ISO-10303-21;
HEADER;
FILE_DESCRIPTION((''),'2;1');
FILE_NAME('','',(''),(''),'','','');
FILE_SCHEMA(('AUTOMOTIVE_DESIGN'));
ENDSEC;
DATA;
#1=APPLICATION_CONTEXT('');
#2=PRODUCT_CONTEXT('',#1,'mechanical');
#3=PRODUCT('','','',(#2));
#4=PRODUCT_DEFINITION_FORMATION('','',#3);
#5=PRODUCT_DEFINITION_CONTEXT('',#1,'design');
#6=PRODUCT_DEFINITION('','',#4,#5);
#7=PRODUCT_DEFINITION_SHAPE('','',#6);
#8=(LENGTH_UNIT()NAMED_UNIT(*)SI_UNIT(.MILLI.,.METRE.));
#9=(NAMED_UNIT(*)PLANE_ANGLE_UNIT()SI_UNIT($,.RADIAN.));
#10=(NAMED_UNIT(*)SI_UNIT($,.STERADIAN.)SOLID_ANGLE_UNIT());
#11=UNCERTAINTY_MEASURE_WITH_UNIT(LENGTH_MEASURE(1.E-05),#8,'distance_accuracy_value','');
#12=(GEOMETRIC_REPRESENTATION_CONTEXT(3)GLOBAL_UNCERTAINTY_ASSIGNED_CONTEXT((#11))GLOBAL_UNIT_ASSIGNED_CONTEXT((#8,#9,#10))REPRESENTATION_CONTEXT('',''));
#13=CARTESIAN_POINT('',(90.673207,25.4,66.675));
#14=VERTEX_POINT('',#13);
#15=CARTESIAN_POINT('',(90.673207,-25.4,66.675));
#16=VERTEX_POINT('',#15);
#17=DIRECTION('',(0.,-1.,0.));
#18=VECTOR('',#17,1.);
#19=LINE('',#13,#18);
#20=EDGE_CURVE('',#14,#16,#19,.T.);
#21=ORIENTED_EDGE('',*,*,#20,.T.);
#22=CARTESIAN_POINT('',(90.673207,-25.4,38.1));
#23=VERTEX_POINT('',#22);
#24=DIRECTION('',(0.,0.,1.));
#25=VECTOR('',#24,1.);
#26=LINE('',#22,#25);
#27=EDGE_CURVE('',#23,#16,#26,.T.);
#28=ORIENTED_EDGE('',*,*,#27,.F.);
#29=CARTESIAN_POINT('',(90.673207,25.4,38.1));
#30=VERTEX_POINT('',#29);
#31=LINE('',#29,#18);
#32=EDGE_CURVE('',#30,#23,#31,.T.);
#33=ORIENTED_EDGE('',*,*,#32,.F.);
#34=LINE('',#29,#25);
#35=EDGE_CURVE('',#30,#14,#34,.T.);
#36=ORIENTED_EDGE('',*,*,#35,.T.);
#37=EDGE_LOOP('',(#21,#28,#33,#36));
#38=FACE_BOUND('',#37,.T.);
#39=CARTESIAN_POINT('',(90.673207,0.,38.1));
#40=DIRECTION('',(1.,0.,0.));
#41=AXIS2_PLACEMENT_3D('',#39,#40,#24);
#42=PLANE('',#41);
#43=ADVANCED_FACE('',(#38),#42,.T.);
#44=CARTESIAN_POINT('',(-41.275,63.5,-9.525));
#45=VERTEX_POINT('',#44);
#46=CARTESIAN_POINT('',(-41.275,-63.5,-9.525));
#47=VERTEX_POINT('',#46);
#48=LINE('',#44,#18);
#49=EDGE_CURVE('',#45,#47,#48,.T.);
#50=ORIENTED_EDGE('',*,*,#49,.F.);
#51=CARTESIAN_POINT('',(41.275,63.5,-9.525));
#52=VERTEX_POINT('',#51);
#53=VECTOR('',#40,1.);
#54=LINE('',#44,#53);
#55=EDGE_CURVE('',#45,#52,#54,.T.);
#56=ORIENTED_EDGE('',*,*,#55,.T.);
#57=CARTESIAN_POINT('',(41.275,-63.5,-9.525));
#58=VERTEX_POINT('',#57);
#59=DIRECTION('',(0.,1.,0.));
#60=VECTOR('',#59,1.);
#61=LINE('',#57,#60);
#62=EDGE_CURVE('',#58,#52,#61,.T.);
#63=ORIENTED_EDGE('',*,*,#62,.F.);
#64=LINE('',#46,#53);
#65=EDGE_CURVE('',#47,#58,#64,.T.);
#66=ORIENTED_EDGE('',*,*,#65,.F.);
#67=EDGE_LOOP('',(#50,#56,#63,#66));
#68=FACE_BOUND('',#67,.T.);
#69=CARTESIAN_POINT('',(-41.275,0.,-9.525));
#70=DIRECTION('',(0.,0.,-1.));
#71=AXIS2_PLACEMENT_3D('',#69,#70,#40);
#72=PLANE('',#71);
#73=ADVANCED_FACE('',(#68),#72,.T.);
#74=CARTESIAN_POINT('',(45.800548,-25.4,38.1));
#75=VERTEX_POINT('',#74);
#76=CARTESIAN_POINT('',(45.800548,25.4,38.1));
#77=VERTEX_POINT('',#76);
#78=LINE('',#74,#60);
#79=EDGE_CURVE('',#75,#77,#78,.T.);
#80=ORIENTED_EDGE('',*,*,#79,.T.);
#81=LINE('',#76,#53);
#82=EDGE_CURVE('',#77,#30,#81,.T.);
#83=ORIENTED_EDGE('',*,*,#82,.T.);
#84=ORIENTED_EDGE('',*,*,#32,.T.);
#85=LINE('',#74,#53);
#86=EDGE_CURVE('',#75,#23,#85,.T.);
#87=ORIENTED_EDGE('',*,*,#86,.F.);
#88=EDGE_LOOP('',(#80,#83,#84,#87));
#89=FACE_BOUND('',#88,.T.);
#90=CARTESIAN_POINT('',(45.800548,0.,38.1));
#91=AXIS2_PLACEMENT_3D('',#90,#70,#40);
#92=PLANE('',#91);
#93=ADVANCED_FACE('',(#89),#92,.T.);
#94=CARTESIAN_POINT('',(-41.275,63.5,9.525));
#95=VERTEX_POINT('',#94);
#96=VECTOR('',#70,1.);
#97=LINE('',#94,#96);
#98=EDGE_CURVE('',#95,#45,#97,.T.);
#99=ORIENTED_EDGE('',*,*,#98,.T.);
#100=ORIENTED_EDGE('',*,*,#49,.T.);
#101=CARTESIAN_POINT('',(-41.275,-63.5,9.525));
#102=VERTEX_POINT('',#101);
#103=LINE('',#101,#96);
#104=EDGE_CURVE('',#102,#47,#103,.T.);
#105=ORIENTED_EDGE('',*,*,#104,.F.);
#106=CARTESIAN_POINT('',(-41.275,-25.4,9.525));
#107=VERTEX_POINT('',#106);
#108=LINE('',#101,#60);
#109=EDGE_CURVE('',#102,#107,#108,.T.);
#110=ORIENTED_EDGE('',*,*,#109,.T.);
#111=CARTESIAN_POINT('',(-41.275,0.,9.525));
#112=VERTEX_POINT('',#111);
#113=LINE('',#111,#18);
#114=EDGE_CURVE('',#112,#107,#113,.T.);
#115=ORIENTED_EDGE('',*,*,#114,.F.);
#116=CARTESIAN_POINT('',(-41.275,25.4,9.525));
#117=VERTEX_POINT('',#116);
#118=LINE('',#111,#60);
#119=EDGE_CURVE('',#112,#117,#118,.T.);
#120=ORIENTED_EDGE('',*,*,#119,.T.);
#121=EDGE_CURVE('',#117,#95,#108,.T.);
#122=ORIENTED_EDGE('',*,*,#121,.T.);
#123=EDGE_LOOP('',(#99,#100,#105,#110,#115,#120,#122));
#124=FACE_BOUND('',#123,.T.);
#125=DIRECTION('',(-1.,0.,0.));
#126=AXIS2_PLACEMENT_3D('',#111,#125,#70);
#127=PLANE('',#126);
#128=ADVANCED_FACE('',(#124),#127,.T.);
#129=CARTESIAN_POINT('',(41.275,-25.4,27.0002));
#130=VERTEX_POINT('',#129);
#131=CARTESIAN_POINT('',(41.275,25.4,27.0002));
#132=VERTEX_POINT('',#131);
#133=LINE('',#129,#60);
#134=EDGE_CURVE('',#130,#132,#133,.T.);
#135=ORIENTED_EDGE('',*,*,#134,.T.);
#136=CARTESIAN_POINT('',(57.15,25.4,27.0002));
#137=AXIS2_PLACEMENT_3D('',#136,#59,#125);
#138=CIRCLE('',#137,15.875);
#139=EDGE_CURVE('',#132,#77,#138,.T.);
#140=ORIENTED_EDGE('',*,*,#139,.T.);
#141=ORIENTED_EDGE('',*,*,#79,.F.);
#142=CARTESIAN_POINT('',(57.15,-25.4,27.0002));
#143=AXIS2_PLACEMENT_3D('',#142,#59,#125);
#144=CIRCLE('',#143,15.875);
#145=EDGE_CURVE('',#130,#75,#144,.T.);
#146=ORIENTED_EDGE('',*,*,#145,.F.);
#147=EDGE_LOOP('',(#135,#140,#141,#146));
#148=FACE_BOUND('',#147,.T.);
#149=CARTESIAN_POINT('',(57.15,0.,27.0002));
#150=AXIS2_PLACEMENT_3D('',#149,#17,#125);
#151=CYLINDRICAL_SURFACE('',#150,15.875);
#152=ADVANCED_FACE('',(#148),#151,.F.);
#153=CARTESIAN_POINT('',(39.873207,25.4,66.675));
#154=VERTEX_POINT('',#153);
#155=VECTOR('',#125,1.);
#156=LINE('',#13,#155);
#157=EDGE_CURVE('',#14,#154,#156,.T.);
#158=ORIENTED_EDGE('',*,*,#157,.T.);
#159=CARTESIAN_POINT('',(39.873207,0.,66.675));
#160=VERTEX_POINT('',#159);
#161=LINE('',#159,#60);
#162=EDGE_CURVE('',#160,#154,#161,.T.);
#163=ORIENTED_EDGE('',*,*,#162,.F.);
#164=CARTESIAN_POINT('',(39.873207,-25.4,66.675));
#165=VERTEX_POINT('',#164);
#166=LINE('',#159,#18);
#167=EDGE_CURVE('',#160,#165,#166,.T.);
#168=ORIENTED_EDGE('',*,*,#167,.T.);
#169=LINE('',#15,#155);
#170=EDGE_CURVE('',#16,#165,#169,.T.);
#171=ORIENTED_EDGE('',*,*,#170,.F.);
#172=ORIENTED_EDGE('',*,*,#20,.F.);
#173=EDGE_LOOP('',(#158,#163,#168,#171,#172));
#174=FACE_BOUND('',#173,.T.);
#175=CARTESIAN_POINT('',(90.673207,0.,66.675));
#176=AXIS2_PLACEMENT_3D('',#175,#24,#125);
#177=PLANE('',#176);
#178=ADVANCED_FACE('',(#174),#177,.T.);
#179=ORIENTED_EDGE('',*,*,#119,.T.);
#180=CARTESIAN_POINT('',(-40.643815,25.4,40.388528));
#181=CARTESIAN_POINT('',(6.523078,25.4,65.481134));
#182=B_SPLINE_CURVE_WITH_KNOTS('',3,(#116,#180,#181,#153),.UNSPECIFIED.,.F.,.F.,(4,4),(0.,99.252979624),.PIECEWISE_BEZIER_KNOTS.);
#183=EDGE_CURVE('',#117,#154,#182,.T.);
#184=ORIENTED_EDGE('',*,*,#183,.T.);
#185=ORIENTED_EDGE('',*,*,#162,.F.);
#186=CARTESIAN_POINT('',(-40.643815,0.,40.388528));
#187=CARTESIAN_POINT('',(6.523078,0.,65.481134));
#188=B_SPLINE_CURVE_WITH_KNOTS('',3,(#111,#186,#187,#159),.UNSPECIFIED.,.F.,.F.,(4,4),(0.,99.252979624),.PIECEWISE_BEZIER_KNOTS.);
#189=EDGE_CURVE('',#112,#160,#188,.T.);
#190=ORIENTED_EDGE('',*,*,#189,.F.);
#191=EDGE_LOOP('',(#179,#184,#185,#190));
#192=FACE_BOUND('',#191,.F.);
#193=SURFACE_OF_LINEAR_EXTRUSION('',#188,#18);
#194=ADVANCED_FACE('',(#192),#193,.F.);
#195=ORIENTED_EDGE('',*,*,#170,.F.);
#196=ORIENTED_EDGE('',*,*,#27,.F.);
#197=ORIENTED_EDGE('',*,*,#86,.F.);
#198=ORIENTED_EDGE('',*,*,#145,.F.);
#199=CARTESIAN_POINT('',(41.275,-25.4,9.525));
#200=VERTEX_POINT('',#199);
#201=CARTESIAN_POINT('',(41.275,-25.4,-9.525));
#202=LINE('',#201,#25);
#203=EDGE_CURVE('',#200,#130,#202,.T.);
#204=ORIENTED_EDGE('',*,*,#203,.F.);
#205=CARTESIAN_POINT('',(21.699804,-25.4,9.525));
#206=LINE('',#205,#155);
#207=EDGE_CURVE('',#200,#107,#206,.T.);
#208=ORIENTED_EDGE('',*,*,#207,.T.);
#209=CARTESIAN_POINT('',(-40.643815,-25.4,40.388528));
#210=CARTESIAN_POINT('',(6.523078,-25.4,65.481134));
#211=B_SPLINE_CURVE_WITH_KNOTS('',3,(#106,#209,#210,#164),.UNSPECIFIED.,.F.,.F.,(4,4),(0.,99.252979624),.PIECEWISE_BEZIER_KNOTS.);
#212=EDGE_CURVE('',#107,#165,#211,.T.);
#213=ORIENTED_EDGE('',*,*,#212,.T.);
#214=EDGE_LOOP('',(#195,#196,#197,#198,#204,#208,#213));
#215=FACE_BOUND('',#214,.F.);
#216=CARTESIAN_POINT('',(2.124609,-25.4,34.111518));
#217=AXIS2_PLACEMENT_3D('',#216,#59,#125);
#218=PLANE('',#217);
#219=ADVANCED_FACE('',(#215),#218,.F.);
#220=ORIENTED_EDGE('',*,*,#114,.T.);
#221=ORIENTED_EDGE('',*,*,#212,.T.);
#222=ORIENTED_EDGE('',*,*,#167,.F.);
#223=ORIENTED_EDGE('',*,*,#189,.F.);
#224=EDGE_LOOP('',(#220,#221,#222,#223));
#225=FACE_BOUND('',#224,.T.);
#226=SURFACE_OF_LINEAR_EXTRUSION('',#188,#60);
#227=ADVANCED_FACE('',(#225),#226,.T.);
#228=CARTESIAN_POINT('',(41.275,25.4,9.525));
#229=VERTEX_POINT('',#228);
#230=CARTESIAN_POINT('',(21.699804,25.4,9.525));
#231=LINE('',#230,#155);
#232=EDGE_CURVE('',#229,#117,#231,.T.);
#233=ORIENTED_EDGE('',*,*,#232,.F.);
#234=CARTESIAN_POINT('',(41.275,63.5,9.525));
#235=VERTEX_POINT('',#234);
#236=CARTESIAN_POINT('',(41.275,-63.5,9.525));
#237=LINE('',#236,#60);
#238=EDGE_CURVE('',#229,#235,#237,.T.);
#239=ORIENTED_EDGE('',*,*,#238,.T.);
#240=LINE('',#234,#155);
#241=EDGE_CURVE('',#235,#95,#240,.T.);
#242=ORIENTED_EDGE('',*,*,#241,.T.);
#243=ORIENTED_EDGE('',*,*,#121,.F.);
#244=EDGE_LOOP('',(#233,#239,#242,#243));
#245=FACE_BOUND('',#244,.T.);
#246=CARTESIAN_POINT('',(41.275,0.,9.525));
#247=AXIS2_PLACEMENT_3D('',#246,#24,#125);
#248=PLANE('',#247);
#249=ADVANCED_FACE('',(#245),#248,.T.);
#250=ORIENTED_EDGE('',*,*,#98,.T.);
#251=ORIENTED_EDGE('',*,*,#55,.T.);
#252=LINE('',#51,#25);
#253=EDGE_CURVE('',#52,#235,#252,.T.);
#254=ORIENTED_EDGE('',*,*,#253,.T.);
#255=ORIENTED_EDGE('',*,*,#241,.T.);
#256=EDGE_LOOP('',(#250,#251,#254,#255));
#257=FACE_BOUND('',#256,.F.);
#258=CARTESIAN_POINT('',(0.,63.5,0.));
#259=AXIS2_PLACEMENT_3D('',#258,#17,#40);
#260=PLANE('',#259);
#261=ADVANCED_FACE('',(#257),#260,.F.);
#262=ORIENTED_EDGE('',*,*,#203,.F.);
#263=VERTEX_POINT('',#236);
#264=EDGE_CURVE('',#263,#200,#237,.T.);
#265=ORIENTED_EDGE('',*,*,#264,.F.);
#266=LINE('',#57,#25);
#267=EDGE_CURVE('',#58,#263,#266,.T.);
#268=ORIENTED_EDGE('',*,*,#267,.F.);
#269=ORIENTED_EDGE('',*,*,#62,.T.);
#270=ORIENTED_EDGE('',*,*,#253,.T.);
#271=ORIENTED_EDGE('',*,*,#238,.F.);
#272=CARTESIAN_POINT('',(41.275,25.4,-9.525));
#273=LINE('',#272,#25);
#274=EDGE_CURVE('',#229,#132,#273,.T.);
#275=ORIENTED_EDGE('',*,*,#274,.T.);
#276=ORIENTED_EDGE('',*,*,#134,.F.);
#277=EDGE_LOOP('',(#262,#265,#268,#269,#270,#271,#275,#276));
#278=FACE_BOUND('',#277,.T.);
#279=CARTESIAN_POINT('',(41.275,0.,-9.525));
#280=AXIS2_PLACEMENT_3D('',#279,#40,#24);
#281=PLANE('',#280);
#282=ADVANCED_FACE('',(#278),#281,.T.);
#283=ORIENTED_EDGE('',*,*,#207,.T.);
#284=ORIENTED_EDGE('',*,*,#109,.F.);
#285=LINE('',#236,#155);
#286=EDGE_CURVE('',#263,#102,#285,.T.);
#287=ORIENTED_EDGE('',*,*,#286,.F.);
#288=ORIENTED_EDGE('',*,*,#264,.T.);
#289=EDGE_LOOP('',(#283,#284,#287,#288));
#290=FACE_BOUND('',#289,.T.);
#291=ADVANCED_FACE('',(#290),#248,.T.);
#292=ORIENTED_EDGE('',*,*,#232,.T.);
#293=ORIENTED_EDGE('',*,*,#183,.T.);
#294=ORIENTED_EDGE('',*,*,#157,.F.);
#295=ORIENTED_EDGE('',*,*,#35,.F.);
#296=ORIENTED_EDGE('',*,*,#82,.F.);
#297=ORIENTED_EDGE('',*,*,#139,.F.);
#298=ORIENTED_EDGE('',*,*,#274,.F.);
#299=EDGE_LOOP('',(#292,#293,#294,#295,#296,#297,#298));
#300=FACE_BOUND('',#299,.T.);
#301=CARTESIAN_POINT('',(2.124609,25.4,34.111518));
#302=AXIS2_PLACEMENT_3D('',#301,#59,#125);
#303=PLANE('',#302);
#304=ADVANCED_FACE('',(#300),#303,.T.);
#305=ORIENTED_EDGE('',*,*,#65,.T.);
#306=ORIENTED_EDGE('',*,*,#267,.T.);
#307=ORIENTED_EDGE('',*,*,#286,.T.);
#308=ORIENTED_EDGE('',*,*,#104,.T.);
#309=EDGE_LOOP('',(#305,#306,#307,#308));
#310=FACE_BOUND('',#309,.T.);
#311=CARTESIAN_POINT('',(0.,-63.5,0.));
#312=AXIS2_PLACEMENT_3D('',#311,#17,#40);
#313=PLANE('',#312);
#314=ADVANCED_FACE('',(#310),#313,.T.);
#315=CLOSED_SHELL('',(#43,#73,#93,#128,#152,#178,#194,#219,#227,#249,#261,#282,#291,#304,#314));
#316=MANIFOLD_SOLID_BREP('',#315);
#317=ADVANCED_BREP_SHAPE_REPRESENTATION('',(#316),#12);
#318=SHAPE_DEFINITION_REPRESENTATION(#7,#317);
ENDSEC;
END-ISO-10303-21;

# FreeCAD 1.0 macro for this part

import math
import FreeCAD as App
import Part
import Sketcher
from FreeCAD import Vector
Q = App.Units.Quantity


def add_polygon(sketch, points):
    """Adds a closed chain of lines whose ends are joined by coincident constraints."""
    first, n = sketch.GeometryCount, len(points)
    for a, b in zip(points, points[1:] + points[:1]):
        sketch.addGeometry(Part.LineSegment(App.Vector(*a, 0), App.Vector(*b, 0)), False)
    for i in range(n):
        sketch.addConstraint(Sketcher.Constraint("Coincident", first + i, 2, first + (i + 1) % n, 1))

doc = App.newDocument("Part")
body = doc.addObject("PartDesign::Body", "Body")

sketch1 = body.newObject("Sketcher::SketchObject", "Sketch")
sketch1.AttachmentSupport = (doc.getObject("XZ_Plane"), [""])
sketch1.MapMode = "FlatFace"
add_polygon(sketch1, [(-41, 10), (-41, -10), (41, -10), (41, 10)])
sketch1.addConstraint([
    Sketcher.Constraint("Vertical", 0),
    Sketcher.Constraint("Horizontal", 1),
    Sketcher.Constraint("Vertical", 2),
    Sketcher.Constraint("Horizontal", 3),
    Sketcher.Constraint("Symmetric", 0, 2, 2, 2, -1, 1),
    Sketcher.Constraint("DistanceX", 1, 1, 1, 2, Q("3.25 in")),
    Sketcher.Constraint("DistanceY", 0, 2, 0, 1, Q("0.75 in")),
])
pad1 = body.newObject("PartDesign::Pad", "Pad")
pad1.Profile = sketch1
pad1.Length = Q("5 in")
pad1.Midplane = True

sketch2 = body.newObject("Sketcher::SketchObject", "Sketch001")
sketch2.AttachmentSupport = (doc.getObject("XZ_Plane"), [""])
sketch2.MapMode = "FlatFace"
sketch2.addGeometry([
    Part.LineSegment(Vector(45.800548, 38.1, 0), Vector(90.673207, 38.1, 0)),
    Part.LineSegment(Vector(90.673207, 38.1, 0), Vector(90.673207, 66.675, 0)),
    Part.LineSegment(Vector(90.673207, 66.675, 0), Vector(39.873207, 66.675, 0)),
    Part.BSplineCurve([Vector(-41.275, 9.525, 0), Vector(-40.643815, 40.388528, 0), Vector(6.523078, 65.481134, 0), Vector(39.873207, 66.675, 0)], [4, 4], [0, 99.252979624], False, 3, [1, 1, 1, 1], False),
    Part.LineSegment(Vector(-41.275, 9.525, 0), Vector(-41.275, -9.525, 0)),
    Part.LineSegment(Vector(-41.275, -9.525, 0), Vector(41.275, -9.525, 0)),
    Part.LineSegment(Vector(41.275, -9.525, 0), Vector(41.275, 27.0002, 0)),
    Part.ArcOfCircle(Part.Circle(Vector(57.15, 27.0002, 0), Vector(0, 0, 1), 15.875), math.radians(135.637145), math.radians(180)),
], False)
sketch2.addConstraint([
    Sketcher.Constraint("Block", 3),
    Sketcher.Constraint("Coincident", 0, 2, 1, 1),
    Sketcher.Constraint("Coincident", 1, 2, 2, 1),
    Sketcher.Constraint("Coincident", 2, 2, 3, 2),
    Sketcher.Constraint("Coincident", 3, 1, 4, 1),
    Sketcher.Constraint("Coincident", 4, 2, 5, 1),
    Sketcher.Constraint("Coincident", 5, 2, 6, 1),
    Sketcher.Constraint("Tangent", 6, 2, 7, 2),
    Sketcher.Constraint("Coincident", 7, 1, 0, 1),
    Sketcher.Constraint("Horizontal", 0),
    Sketcher.Constraint("Vertical", 1),
    Sketcher.Constraint("Horizontal", 2),
    Sketcher.Constraint("Vertical", 4),
    Sketcher.Constraint("Horizontal", 5),
    Sketcher.Constraint("Vertical", 6),
    Sketcher.Constraint("DistanceX", 2, 2, 2, 1, Q("2 in")),
    Sketcher.Constraint("Radius", 7, Q("0.625 in")),
    Sketcher.Constraint("DistanceY", 4, 2, 2, 2, Q("3 in")),
    Sketcher.Constraint("DistanceX", 5, 1, 5, 2, Q("3.25 in")),
    Sketcher.Constraint("DistanceY", -1, 1, 0, 2, Q("1.5 in")),
    Sketcher.Constraint("DistanceY", 6, 1, 6, 2, Q("1.438 in")),
])
pad2 = body.newObject("PartDesign::Pad", "Pad001")
pad2.Profile = sketch2
pad2.Length = Q("2 in")
pad2.Midplane = True

doc.recompute()
